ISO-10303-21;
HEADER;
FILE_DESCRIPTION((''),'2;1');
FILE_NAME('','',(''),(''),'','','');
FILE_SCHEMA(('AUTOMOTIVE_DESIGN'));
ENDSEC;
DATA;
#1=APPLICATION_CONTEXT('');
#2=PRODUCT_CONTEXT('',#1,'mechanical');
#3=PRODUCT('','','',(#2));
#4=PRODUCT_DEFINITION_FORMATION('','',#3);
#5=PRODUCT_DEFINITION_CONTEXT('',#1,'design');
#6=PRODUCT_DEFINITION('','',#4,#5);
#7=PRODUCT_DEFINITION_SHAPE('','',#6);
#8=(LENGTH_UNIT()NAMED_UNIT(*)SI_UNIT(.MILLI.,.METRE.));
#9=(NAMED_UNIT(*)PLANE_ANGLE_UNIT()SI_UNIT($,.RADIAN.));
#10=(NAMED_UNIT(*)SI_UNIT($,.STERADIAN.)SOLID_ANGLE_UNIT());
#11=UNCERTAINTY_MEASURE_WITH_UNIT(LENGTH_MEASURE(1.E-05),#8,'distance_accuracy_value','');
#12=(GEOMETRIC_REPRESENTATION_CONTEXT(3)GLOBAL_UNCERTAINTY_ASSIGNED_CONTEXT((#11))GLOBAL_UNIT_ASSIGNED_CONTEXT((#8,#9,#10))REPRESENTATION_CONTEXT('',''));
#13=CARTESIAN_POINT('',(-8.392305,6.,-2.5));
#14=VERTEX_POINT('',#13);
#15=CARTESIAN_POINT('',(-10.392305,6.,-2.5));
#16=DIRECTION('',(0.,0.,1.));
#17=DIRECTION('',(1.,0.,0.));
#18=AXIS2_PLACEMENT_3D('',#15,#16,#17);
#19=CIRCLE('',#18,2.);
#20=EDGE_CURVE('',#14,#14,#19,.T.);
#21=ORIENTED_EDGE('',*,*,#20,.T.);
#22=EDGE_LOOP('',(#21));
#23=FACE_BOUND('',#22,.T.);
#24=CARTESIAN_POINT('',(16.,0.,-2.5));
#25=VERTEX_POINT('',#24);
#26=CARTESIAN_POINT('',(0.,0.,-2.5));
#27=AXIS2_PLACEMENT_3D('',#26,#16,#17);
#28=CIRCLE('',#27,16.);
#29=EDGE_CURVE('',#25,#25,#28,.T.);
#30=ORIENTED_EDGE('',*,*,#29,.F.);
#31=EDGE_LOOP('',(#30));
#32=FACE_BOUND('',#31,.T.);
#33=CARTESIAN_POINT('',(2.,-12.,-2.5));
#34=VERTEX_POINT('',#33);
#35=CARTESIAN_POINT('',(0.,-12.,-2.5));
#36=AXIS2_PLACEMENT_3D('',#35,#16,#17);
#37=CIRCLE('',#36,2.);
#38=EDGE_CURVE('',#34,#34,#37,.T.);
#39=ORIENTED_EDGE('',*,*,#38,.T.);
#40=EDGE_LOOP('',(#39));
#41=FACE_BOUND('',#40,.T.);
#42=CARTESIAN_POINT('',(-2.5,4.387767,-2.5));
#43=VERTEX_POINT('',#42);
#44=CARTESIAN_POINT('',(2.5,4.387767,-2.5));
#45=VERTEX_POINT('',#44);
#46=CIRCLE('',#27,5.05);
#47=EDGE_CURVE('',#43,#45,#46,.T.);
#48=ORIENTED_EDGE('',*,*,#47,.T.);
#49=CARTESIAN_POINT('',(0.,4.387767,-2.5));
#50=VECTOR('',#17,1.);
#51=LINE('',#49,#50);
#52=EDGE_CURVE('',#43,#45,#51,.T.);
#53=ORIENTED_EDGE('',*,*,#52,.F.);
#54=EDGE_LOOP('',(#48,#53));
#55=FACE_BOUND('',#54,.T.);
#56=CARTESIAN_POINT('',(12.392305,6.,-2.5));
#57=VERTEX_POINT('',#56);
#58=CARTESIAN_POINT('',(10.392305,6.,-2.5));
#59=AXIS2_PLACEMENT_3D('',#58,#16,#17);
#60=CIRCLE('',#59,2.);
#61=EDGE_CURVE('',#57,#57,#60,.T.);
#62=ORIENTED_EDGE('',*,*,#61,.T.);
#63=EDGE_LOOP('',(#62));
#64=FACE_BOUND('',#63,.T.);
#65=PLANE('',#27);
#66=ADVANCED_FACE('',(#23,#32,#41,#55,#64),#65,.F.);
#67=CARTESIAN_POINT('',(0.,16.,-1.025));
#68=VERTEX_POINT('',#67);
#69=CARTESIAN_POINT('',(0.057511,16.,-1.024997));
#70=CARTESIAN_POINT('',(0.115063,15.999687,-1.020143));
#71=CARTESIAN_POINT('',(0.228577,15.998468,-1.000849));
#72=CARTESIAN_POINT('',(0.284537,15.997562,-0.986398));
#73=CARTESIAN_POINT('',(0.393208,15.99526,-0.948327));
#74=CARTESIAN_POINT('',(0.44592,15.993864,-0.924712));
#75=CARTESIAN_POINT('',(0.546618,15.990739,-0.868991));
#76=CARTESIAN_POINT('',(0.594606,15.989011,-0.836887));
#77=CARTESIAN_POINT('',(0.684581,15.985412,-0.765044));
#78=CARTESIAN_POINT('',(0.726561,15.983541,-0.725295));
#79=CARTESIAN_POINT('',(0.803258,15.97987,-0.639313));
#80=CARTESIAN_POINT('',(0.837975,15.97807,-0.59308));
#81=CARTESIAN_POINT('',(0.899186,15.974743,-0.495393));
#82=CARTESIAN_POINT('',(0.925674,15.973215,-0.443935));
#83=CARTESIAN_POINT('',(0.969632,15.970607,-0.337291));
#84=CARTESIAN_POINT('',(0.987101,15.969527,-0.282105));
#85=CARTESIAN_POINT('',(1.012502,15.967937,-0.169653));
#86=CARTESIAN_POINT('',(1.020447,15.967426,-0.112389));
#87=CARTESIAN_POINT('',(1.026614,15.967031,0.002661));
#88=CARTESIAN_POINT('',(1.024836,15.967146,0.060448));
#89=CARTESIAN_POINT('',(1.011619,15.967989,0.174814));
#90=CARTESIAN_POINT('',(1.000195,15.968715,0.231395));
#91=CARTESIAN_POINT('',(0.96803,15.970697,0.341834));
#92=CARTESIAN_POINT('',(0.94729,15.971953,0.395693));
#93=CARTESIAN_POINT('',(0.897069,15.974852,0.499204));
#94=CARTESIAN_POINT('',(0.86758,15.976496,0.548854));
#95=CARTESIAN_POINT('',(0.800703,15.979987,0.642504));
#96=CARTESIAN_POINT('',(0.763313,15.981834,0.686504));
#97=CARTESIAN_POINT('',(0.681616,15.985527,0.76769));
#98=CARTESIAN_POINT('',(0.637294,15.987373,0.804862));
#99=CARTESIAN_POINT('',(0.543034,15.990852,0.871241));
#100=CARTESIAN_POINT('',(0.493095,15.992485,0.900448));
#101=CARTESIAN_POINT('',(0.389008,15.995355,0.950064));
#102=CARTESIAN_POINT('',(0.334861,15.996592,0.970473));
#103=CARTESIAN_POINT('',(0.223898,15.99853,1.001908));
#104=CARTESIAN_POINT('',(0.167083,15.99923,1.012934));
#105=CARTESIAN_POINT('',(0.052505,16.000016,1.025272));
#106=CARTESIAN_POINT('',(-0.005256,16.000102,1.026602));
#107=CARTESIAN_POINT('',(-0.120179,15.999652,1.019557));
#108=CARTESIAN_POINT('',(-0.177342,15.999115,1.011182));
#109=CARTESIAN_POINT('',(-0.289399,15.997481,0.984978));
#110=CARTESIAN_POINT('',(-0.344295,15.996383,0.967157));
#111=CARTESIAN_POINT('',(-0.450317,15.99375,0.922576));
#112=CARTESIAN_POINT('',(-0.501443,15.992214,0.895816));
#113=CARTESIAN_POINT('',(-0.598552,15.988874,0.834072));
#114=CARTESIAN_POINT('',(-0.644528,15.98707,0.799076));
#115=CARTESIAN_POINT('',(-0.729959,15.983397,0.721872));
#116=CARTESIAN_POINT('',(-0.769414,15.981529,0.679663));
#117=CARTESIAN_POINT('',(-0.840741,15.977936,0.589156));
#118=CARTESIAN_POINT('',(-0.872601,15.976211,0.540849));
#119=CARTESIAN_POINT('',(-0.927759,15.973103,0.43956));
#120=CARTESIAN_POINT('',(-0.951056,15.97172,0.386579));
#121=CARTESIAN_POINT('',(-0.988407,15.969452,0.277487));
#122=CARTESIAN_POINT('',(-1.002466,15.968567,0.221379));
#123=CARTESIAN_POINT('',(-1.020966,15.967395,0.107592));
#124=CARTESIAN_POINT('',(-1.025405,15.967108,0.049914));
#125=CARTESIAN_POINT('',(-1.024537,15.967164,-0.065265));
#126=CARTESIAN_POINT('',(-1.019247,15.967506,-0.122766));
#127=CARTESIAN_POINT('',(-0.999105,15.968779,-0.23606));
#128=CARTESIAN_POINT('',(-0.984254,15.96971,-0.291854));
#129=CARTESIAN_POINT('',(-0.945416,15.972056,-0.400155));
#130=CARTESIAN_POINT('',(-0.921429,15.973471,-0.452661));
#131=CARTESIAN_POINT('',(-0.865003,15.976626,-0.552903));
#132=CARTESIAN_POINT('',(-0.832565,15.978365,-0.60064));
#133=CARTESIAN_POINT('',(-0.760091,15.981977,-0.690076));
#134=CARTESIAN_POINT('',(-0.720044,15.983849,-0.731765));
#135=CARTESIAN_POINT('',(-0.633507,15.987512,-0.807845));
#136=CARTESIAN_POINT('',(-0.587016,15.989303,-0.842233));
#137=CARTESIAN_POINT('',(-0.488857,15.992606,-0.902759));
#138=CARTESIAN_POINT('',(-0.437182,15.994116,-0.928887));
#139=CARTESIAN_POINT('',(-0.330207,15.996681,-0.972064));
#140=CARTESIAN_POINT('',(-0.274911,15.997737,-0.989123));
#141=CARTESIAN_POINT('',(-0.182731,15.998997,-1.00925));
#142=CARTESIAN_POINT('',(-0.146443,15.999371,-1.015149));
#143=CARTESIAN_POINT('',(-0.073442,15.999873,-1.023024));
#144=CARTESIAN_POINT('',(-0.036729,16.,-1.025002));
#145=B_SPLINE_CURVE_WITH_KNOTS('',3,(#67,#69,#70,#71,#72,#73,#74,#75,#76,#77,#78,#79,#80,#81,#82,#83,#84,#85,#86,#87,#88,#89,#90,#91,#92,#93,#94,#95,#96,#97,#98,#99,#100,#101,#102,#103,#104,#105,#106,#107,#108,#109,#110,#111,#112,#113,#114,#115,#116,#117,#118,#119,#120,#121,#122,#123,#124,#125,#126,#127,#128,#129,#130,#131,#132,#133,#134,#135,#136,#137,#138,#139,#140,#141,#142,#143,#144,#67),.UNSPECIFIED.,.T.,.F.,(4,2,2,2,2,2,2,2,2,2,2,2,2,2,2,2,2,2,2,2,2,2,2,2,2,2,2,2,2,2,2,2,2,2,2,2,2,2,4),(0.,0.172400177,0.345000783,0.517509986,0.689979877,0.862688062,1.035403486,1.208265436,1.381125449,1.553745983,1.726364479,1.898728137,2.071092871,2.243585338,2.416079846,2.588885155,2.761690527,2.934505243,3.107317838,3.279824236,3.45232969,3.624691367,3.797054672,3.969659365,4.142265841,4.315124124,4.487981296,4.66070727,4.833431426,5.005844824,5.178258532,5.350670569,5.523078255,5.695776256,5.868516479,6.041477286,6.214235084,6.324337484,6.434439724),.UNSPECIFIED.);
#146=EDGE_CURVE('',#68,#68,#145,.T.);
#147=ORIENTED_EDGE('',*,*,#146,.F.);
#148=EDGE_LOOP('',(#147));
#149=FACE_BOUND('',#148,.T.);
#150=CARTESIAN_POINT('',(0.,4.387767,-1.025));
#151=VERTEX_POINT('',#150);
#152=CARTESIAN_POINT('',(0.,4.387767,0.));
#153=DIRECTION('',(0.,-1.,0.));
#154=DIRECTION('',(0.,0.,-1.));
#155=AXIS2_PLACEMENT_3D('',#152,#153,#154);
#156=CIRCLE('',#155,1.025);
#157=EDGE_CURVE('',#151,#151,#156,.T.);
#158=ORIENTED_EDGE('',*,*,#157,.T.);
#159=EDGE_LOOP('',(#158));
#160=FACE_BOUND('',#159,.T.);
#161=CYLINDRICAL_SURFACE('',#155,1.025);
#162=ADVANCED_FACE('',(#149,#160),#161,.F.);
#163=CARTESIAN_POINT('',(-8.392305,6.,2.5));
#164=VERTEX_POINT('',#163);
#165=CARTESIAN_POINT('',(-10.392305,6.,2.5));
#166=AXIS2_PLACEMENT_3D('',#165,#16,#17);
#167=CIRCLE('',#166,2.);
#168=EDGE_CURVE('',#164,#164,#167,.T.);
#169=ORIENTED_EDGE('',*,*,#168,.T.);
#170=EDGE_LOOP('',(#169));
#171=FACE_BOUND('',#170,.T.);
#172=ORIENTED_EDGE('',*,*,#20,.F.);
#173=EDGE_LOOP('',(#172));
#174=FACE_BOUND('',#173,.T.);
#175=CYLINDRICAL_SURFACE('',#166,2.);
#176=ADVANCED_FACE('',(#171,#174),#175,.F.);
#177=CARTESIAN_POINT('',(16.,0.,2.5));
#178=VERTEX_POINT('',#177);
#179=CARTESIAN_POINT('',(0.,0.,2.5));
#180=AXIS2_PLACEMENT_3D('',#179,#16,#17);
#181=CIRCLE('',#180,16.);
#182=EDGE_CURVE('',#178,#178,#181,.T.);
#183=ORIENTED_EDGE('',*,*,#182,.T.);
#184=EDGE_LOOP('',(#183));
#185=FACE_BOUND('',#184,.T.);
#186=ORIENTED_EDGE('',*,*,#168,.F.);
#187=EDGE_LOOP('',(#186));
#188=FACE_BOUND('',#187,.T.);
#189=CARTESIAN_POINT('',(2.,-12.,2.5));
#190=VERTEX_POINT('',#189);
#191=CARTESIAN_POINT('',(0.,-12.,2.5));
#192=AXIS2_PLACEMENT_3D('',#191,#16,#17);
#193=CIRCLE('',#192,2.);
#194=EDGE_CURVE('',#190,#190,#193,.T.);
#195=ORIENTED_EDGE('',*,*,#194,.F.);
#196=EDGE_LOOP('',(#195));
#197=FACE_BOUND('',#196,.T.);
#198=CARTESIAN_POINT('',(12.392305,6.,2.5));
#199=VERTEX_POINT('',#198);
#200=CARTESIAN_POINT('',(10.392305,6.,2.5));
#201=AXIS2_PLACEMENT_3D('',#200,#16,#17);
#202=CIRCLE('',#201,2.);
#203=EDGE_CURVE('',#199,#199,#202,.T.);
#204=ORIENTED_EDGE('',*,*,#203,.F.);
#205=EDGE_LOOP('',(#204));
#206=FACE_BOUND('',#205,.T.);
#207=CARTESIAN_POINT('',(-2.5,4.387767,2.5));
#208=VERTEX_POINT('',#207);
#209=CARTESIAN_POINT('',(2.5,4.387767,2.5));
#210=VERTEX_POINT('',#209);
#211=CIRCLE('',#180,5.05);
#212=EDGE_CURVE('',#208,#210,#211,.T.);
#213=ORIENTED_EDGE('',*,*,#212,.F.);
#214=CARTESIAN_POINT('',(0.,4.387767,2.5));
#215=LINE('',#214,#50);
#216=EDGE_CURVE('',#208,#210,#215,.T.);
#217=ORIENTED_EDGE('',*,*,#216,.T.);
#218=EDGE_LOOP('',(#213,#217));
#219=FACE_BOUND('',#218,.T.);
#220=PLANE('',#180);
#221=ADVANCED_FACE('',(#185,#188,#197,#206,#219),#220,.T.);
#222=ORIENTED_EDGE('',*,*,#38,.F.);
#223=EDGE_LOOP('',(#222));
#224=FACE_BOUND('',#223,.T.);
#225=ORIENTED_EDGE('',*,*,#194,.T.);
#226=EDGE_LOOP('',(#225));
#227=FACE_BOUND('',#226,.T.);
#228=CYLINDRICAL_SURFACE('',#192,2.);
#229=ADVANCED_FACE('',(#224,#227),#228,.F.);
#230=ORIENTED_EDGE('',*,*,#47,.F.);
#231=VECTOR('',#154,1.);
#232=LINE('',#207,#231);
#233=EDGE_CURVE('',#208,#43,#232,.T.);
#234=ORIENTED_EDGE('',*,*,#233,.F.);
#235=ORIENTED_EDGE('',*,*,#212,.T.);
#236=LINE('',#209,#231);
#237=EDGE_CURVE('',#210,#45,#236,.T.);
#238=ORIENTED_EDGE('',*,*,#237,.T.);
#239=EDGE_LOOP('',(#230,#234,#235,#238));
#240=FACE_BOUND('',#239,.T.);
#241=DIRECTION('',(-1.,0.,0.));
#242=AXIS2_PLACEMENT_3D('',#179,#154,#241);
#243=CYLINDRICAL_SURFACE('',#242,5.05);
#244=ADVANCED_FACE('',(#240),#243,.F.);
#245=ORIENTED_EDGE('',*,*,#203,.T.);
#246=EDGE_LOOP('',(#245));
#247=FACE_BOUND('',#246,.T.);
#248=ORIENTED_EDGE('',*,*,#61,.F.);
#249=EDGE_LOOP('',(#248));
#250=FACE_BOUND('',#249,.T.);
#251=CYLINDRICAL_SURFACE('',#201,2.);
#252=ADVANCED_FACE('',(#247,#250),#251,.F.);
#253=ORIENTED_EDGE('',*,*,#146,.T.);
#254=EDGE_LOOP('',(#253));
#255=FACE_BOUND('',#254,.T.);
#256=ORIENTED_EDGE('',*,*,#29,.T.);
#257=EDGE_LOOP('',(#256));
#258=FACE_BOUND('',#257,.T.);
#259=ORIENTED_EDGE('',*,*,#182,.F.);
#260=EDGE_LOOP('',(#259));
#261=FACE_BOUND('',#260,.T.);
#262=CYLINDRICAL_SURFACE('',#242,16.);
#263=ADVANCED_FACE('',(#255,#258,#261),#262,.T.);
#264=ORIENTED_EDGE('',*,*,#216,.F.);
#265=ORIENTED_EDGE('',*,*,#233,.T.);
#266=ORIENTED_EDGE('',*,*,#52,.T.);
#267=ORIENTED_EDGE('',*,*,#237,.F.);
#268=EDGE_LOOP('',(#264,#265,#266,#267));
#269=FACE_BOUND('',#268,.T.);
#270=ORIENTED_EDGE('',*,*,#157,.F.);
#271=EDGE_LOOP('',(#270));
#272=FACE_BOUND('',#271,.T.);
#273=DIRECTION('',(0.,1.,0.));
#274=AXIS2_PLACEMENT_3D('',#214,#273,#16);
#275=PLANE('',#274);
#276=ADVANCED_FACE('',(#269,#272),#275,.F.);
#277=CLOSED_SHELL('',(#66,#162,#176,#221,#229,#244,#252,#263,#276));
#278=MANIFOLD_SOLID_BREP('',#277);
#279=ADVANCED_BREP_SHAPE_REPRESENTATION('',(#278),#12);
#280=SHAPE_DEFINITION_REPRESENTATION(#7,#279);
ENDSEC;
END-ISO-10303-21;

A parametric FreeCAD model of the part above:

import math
import FreeCAD as App
import Part
import Sketcher

V = App.Vector


def add_polygon(sketch, points):
    """Adds a closed chain of lines whose ends are joined by coincident constraints."""
    first, n = sketch.GeometryCount, len(points)
    for a, b in zip(points, points[1:] + points[:1]):
        sketch.addGeometry(Part.LineSegment(App.Vector(*a, 0), App.Vector(*b, 0)), False)
    for i in range(n):
        sketch.addConstraint(Sketcher.Constraint("Coincident", first + i, 2, first + (i + 1) % n, 1))

doc = App.newDocument("Part")
body = doc.addObject("PartDesign::Body", "Body")

sketch1 = body.newObject("Sketcher::SketchObject", "Sketch")
sketch1.AttachmentSupport = (doc.getObject("XY_Plane"), [""])
sketch1.MapMode = "FlatFace"
sketch1.addGeometry(Part.Circle(V(0, 0, 0), V(0, 0, 1), 16), False)
sketch1.addGeometry(Part.ArcOfCircle(Part.Circle(V(0, 0, 0), V(0, 0, 1), 5), math.radians(120), math.radians(420)), False)
sketch1.addGeometry(Part.LineSegment(V(-2, 4, 0), V(2, 4, 0)), False)
sketch1.addConstraint(Sketcher.Constraint("Coincident", 1, 1, 2, 1))
sketch1.addConstraint(Sketcher.Constraint("Coincident", 2, 2, 1, 2))
sketch1.addConstraint(Sketcher.Constraint("Horizontal", 2))
sketch1.addConstraint(Sketcher.Constraint("Coincident", 0, 3, -1, 1))
sketch1.addConstraint(Sketcher.Constraint("Coincident", 1, 3, -1, 1))
sketch1.addConstraint(Sketcher.Constraint("Diameter", 0, 32.0))
sketch1.addConstraint(Sketcher.Constraint("DistanceX", 2, 1, 2, 2, 5.0))
sketch1.addConstraint(Sketcher.Constraint("Radius", 1, 5.05))
pad1 = body.newObject("PartDesign::Pad", "Pad")
pad1.Profile = sketch1
pad1.Length = 5
pad1.Midplane = True

sketch2 = body.newObject("Sketcher::SketchObject", "Sketch001")
sketch2.AttachmentSupport = (doc.getObject("XY_Plane"), [""])
sketch2.MapMode = "FlatFace"
sketch2.AttachmentOffset = App.Placement(V(0, 0, 2.5), App.Rotation())
sketch2.addGeometry(Part.Circle(V(0, -12, 0), V(0, 0, 1), 2), False)
sketch2.addConstraint(Sketcher.Constraint("PointOnObject", 0, 3, -2))
sketch2.addConstraint(Sketcher.Constraint("Diameter", 0, 4.0))
sketch2.addConstraint(Sketcher.Constraint("DistanceY", 0, 3, -1, 1, 12.0))
doc.recompute()
hole = body.newObject("PartDesign::Hole", "Hole")
hole.Profile = sketch2
hole.ThreadType = "None"
hole.Diameter = 4
hole.DepthType = "ThroughAll"
doc.recompute()

polarpattern = body.newObject("PartDesign::PolarPattern", "PolarPattern")
polarpattern.Originals = [hole]
polarpattern.Axis = (doc.getObject("Z_Axis"), [""])
polarpattern.Angle = 360
polarpattern.Occurrences = 3
body.Tip = polarpattern

sketch3 = body.newObject("Sketcher::SketchObject", "Sketch002")
sketch3.AttachmentSupport = (doc.getObject("YZ_Plane"), [""])
sketch3.MapMode = "FlatFace"
add_polygon(sketch3, [(16, 0), (4.4, 0), (4.4, -1), (16, -1)])
sketch3.addConstraint(Sketcher.Constraint("Horizontal", 0))
sketch3.addConstraint(Sketcher.Constraint("Vertical", 1))
sketch3.addConstraint(Sketcher.Constraint("Horizontal", 2))
sketch3.addConstraint(Sketcher.Constraint("Vertical", 3))
sketch3.addConstraint(Sketcher.Constraint("PointOnObject", 0, 2, -1))
sketch3.addConstraint(Sketcher.Constraint("DistanceX", -1, 1, 2, 2, 16.0))
sketch3.addConstraint(Sketcher.Constraint("DistanceY", 1, 2, 1, 1, 1.025))
sketch3.addConstraint(Sketcher.Constraint("DistanceX", 0, 2, 0, 1, 11.612233))
groove = body.newObject("PartDesign::Groove", "Groove")
groove.Profile = sketch3
groove.ReferenceAxis = (sketch3, ["H_Axis"])
groove.Angle = 360

doc.recompute()
